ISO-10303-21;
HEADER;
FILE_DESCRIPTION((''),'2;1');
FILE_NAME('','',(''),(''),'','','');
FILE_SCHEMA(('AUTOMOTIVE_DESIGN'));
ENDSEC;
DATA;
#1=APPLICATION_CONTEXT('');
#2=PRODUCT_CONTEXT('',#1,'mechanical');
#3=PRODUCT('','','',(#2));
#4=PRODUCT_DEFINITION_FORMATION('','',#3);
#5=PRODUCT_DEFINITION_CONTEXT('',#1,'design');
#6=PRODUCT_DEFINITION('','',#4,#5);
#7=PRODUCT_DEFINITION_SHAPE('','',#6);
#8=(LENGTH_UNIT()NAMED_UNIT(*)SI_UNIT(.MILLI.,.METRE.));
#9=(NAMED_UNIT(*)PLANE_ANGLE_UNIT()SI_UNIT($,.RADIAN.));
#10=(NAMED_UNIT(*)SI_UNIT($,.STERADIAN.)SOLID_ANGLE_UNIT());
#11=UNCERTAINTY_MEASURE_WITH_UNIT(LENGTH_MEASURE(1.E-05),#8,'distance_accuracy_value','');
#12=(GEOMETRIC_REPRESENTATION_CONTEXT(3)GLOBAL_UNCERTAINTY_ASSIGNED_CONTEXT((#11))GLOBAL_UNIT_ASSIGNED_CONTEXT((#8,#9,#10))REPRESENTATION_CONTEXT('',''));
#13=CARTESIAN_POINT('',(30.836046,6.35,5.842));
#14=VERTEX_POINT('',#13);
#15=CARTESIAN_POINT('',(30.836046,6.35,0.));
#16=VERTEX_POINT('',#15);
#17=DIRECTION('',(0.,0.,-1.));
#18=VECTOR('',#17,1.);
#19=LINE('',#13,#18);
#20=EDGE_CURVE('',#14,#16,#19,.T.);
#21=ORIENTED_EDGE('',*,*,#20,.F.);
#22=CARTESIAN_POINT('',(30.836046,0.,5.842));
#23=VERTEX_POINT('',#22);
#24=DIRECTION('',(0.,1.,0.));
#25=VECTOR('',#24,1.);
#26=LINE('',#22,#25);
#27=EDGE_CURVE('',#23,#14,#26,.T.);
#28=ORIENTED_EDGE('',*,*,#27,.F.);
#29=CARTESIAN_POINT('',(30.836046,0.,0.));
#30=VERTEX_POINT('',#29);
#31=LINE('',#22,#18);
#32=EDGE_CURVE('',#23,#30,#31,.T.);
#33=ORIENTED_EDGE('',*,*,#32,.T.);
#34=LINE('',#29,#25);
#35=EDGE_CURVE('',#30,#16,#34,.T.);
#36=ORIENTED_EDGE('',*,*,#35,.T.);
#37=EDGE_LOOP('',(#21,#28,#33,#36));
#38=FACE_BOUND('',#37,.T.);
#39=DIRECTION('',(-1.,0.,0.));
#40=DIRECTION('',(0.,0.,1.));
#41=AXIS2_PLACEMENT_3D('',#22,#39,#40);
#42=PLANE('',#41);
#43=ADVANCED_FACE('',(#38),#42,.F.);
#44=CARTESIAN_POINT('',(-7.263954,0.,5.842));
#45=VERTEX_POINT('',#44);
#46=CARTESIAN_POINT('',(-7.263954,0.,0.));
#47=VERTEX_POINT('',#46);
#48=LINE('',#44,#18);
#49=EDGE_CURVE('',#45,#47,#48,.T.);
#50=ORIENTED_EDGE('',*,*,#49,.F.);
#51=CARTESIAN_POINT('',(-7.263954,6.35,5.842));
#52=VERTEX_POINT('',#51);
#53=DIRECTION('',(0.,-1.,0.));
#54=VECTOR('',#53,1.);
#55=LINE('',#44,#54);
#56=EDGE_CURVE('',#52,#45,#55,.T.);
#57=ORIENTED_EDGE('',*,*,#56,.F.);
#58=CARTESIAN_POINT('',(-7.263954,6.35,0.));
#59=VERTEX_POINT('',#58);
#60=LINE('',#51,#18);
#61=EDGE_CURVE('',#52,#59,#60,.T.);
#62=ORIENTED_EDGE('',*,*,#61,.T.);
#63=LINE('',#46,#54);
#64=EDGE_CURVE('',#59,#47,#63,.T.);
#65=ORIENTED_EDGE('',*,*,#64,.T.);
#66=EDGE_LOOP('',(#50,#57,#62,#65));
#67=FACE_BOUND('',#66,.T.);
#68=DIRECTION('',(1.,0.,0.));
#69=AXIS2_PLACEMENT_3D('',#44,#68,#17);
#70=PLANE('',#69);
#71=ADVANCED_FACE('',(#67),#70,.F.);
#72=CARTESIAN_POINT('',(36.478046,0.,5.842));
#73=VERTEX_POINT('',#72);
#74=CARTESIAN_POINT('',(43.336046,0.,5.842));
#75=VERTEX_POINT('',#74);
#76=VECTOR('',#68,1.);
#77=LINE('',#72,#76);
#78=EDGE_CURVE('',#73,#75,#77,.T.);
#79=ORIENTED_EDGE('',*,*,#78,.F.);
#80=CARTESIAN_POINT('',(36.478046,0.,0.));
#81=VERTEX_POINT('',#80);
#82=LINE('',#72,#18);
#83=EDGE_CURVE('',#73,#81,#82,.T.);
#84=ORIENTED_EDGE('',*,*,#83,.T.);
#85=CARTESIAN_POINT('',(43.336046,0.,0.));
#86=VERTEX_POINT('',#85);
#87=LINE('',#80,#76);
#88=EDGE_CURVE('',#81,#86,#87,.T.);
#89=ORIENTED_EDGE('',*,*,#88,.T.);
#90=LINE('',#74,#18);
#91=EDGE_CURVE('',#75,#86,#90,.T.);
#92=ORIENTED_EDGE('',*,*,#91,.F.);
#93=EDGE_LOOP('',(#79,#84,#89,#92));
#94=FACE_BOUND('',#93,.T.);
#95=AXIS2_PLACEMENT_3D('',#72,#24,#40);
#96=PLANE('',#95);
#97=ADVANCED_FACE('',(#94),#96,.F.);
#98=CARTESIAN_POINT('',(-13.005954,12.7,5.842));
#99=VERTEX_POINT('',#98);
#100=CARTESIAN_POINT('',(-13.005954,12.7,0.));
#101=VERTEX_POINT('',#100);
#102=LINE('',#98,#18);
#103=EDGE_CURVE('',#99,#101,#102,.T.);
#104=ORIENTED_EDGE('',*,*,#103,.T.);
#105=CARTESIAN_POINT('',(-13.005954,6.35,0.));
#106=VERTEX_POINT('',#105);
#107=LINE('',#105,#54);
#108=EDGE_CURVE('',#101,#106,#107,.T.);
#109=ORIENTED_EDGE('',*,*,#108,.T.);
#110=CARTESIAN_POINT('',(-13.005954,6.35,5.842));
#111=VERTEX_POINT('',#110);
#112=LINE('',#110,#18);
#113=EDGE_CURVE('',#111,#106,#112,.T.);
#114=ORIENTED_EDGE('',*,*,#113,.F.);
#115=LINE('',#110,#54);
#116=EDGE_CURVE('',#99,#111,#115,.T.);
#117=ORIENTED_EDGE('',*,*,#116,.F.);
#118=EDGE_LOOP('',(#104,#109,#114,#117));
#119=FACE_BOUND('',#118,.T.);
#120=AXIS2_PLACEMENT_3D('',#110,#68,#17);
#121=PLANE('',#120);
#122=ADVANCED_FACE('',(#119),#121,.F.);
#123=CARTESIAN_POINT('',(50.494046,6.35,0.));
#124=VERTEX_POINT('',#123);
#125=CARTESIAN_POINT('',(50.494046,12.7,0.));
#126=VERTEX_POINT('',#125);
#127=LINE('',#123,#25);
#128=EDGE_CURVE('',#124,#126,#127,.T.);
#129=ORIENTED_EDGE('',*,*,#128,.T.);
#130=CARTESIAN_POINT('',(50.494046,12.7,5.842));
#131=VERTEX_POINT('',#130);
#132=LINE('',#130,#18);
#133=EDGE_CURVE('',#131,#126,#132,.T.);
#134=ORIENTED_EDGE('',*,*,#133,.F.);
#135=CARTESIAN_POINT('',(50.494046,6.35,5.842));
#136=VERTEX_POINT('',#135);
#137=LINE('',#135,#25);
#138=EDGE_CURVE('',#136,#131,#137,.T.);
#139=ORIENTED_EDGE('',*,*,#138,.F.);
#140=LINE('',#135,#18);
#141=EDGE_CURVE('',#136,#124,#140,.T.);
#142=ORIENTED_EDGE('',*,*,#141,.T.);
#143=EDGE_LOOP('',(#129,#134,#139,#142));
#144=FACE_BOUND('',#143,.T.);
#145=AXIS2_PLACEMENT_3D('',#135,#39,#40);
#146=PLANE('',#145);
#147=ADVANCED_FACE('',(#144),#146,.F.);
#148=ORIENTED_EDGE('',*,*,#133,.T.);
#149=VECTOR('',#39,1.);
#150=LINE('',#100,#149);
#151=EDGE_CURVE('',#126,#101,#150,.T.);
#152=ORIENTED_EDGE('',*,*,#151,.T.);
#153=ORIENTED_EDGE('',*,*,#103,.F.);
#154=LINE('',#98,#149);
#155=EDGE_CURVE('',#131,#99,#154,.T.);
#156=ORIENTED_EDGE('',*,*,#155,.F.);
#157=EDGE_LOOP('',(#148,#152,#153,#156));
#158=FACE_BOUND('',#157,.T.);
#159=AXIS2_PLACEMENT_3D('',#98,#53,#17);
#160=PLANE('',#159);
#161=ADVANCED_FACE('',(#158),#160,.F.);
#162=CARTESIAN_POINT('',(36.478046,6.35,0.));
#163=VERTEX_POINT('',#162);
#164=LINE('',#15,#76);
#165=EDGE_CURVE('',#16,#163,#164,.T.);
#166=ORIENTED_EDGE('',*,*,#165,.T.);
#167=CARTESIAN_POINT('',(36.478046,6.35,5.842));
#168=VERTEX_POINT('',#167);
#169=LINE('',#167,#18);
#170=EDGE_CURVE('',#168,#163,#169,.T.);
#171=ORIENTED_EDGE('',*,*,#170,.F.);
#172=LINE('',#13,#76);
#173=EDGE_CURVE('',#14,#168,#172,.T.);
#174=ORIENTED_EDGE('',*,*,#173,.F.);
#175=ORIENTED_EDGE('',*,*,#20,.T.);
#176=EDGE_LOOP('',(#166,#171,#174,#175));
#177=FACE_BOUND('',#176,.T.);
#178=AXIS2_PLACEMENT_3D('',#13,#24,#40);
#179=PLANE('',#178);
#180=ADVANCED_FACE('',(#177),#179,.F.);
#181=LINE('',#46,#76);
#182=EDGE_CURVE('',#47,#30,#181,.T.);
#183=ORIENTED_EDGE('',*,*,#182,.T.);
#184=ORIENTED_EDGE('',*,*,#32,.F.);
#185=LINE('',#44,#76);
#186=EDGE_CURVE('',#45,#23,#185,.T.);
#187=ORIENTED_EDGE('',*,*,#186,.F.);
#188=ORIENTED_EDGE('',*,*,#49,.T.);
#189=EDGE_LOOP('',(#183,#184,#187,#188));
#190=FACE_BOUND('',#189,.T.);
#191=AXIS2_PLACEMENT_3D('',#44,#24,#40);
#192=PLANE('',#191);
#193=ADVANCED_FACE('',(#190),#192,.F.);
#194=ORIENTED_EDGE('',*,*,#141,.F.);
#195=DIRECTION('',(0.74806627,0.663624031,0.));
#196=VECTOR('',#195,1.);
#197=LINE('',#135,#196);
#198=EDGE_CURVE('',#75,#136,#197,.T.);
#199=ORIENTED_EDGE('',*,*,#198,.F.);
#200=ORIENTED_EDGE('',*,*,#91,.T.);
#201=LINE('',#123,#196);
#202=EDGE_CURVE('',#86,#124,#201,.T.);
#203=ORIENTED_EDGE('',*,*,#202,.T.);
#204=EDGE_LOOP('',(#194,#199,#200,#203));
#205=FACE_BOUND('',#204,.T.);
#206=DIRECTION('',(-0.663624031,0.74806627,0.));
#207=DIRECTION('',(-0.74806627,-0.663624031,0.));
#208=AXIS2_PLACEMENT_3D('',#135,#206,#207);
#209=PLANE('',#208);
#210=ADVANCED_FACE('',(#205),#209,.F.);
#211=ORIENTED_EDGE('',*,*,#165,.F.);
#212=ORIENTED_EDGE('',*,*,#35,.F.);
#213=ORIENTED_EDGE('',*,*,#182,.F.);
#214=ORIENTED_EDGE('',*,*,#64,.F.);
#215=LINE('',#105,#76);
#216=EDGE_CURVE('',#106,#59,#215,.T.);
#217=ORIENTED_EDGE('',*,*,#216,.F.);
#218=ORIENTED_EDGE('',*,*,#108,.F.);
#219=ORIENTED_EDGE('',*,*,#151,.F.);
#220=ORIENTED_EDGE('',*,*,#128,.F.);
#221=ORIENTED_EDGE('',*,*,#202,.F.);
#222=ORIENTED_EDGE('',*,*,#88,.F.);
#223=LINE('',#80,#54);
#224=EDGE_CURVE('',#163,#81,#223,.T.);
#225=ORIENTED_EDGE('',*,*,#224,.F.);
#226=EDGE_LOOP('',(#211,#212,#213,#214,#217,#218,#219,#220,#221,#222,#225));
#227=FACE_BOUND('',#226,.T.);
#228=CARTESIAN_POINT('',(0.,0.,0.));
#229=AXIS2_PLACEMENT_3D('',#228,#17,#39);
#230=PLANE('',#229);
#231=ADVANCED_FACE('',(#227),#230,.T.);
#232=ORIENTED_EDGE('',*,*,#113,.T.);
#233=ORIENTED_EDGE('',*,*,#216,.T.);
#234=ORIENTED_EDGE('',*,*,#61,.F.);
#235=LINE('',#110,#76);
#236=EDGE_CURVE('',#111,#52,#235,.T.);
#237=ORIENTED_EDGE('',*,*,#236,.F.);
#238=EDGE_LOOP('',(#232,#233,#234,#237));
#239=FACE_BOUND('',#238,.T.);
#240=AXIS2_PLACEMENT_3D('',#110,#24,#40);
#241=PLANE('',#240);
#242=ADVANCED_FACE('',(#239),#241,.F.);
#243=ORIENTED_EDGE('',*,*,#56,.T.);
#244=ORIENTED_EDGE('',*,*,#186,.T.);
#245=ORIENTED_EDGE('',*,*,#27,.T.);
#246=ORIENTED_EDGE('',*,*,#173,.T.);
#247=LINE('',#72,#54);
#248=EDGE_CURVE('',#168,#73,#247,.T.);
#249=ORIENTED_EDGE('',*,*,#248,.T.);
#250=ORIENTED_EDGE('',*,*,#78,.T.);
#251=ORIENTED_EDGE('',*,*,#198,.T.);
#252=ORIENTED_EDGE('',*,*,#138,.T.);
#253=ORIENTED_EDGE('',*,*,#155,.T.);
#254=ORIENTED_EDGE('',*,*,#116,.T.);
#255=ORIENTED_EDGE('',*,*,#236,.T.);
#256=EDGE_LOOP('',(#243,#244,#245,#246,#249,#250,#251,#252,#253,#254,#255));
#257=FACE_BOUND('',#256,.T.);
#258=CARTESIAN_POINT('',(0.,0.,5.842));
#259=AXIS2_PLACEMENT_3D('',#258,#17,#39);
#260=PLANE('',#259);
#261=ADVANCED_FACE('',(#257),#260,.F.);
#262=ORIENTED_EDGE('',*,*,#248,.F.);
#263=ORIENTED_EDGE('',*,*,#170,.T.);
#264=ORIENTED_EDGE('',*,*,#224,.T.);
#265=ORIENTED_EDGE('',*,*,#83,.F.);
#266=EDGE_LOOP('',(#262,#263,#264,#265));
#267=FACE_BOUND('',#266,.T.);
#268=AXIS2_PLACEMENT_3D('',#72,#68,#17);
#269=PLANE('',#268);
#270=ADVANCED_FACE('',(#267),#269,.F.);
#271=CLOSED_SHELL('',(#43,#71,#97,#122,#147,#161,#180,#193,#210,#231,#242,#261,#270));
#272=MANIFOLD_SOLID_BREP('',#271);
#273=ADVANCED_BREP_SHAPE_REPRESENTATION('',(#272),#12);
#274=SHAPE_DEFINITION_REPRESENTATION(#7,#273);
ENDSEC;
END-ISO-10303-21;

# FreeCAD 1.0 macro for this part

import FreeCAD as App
import Part
import Sketcher

V = App.Vector
Q = App.Units.Quantity

doc = App.newDocument("Part")
body = doc.addObject("PartDesign::Body", "Body")

# Sketch on XY plane
sketch1 = body.newObject("Sketcher::SketchObject", "Sketch")
sketch1.AttachmentSupport = (doc.getObject("XY_Plane"), [""])
sketch1.MapMode = "FlatFace"
sketch1.addGeometry([
    Part.LineSegment(V(36, 0, 0), V(43, 0, 0)),  # 0
    Part.LineSegment(V(43, 0, 0), V(50, 6, 0)),  # 1
    Part.LineSegment(V(50, 6, 0), V(50, 13, 0)),  # 2
    Part.LineSegment(V(50, 13, 0), V(-13, 13, 0)),  # 3
    Part.LineSegment(V(-13, 13, 0), V(-13, 6, 0)),  # 4
    Part.LineSegment(V(-13, 6, 0), V(-7, 6, 0)),  # 5
    Part.LineSegment(V(-7, 6, 0), V(-7, 0, 0)),  # 6
    Part.LineSegment(V(-7, 0, 0), V(31, 0, 0)),  # 7
    Part.LineSegment(V(31, 0, 0), V(31, 6, 0)),  # 8
    Part.LineSegment(V(31, 6, 0), V(36, 6, 0)),  # 9
    Part.LineSegment(V(36, 6, 0), V(36, 0, 0)),  # 10
], False)
sketch1.addConstraint([
    Sketcher.Constraint("Coincident", 0, 2, 1, 1),
    Sketcher.Constraint("Coincident", 1, 2, 2, 1),
    Sketcher.Constraint("Coincident", 2, 2, 3, 1),
    Sketcher.Constraint("Coincident", 3, 2, 4, 1),
    Sketcher.Constraint("Coincident", 4, 2, 5, 1),
    Sketcher.Constraint("Coincident", 5, 2, 6, 1),
    Sketcher.Constraint("Coincident", 6, 2, 7, 1),
    Sketcher.Constraint("Coincident", 7, 2, 8, 1),
    Sketcher.Constraint("Coincident", 8, 2, 9, 1),
    Sketcher.Constraint("Coincident", 9, 2, 10, 1),
    Sketcher.Constraint("Coincident", 10, 2, 0, 1),
    Sketcher.Constraint("Horizontal", 0),
    Sketcher.Constraint("Vertical", 2),
    Sketcher.Constraint("Horizontal", 3),
    Sketcher.Constraint("Vertical", 4),
    Sketcher.Constraint("Horizontal", 5),
    Sketcher.Constraint("Vertical", 6),
    Sketcher.Constraint("Horizontal", 7),
    Sketcher.Constraint("Vertical", 8),
    Sketcher.Constraint("Horizontal", 9),
    Sketcher.Constraint("Vertical", 10),
    Sketcher.Constraint("PointOnObject", 0, 2, -1),
    Sketcher.Constraint("PointOnObject", 6, 2, -1),
    Sketcher.Constraint("Horizontal", 1, 2, 4, 2),
    Sketcher.Constraint("Horizontal", 5, 2, 8, 2),
    Sketcher.Constraint("Equal", 4, 6),
    Sketcher.Constraint("DistanceX", 3, 2, 3, 1, Q("2.5 in")),
    Sketcher.Constraint("DistanceX", 7, 1, 7, 2, Q("1.5 in")),
    Sketcher.Constraint("DistanceX", 0, 1, 0, 2, Q("0.27 in")),
    Sketcher.Constraint("DistanceY", 2, 1, 2, 2, Q("0.25 in")),
    Sketcher.Constraint("DistanceX", 5, 1, 5, 2, 5.742),
    Sketcher.Constraint("DistanceX", 9, 1, 9, 2, 5.642),
    Sketcher.Constraint("DistanceX", -1, 1, 0, 2, 43.336046),
])
pad1 = body.newObject("PartDesign::Pad", "Pad")
pad1.Profile = sketch1
pad1.Length = Q("0.23 in")

doc.recompute()
